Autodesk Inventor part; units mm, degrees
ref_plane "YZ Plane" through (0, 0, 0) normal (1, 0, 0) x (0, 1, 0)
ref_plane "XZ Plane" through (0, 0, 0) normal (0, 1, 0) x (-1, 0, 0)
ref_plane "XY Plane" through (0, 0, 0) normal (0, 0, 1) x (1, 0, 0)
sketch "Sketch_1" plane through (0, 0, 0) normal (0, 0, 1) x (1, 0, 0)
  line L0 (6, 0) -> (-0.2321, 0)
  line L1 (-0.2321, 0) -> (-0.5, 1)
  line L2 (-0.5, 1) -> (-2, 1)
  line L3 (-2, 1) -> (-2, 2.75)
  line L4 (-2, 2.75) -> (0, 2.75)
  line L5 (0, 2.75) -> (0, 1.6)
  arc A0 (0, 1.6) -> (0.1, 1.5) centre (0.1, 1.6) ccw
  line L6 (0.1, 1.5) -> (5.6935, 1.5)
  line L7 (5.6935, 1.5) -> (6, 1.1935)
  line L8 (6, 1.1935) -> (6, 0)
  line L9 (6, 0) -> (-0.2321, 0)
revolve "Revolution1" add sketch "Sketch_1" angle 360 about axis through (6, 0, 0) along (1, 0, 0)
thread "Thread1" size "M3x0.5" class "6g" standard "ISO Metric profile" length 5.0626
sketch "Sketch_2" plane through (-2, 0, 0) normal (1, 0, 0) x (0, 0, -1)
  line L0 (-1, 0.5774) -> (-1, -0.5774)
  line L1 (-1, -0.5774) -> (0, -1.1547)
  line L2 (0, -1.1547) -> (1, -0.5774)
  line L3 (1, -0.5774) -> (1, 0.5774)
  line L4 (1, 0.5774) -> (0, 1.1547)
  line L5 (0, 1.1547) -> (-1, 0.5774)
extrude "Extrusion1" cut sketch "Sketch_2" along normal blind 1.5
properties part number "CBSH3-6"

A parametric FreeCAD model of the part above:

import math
import FreeCAD as App
import Part
import Sketcher
from FreeCAD import Vector
Q = App.Units.Quantity


def add_polygon(sketch, points):
    """Adds a closed chain of lines whose ends are joined by coincident constraints."""
    first, n = sketch.GeometryCount, len(points)
    for a, b in zip(points, points[1:] + points[:1]):
        sketch.addGeometry(Part.LineSegment(App.Vector(*a, 0), App.Vector(*b, 0)), False)
    for i in range(n):
        sketch.addConstraint(Sketcher.Constraint("Coincident", first + i, 2, first + (i + 1) % n, 1))

doc = App.newDocument("Part")
body = doc.addObject("PartDesign::Body", "Body")

# Sketch on XY plane
sketch1 = body.newObject("Sketcher::SketchObject", "Sketch")
sketch1.AttachmentSupport = (doc.getObject("XY_Plane"), [""])
sketch1.MapMode = "FlatFace"
sketch1.addGeometry(Part.LineSegment(Vector(-0.23, 0, 0), Vector(6, 0, 0)), False)
sketch1.addGeometry(Part.LineSegment(Vector(6, 0, 0), Vector(6, 1.19, 0)), False)
sketch1.addGeometry(Part.LineSegment(Vector(6, 1.19, 0), Vector(5.69, 1.5, 0)), False)
sketch1.addGeometry(Part.LineSegment(Vector(5.69, 1.5, 0), Vector(0.1, 1.5, 0)), False)
sketch1.addGeometry(Part.ArcOfCircle(Part.Circle(Vector(0.1, 1.6, 0), Vector(0, 0, 1), 0.1), math.radians(180), math.radians(270)), False)
sketch1.addGeometry(Part.LineSegment(Vector(0, 1.6, 0), Vector(0, 2.75, 0)), False)
sketch1.addGeometry(Part.LineSegment(Vector(0, 2.75, 0), Vector(-2, 2.75, 0)), False)
sketch1.addGeometry(Part.LineSegment(Vector(-2, 2.75, 0), Vector(-2, 1, 0)), False)
sketch1.addGeometry(Part.LineSegment(Vector(-2, 1, 0), Vector(-0.5, 1, 0)), False)
sketch1.addGeometry(Part.LineSegment(Vector(-0.5, 1, 0), Vector(-0.23, 0, 0)), False)
sketch1.addConstraint(Sketcher.Constraint("Coincident", 0, 2, 1, 1))
sketch1.addConstraint(Sketcher.Constraint("Coincident", 1, 2, 2, 1))
sketch1.addConstraint(Sketcher.Constraint("Coincident", 2, 2, 3, 1))
sketch1.addConstraint(Sketcher.Constraint("Tangent", 3, 2, 4, 2))
sketch1.addConstraint(Sketcher.Constraint("Tangent", 4, 1, 5, 1))
sketch1.addConstraint(Sketcher.Constraint("Coincident", 5, 2, 6, 1))
sketch1.addConstraint(Sketcher.Constraint("Coincident", 6, 2, 7, 1))
sketch1.addConstraint(Sketcher.Constraint("Coincident", 7, 2, 8, 1))
sketch1.addConstraint(Sketcher.Constraint("Coincident", 8, 2, 9, 1))
sketch1.addConstraint(Sketcher.Constraint("Coincident", 9, 2, 0, 1))
sketch1.addConstraint(Sketcher.Constraint("Horizontal", 0))
sketch1.addConstraint(Sketcher.Constraint("Vertical", 1))
sketch1.addConstraint(Sketcher.Constraint("Horizontal", 3))
sketch1.addConstraint(Sketcher.Constraint("Vertical", 5))
sketch1.addConstraint(Sketcher.Constraint("Horizontal", 6))
sketch1.addConstraint(Sketcher.Constraint("Vertical", 7))
sketch1.addConstraint(Sketcher.Constraint("Horizontal", 8))
sketch1.addConstraint(Sketcher.Constraint("PointOnObject", 0, 2, -1))
sketch1.addConstraint(Sketcher.Constraint("PointOnObject", 4, 1, -2))
sketch1.addConstraint(Sketcher.Constraint("Radius", 4, 0.1))
sketch1.addConstraint(Sketcher.Constraint("DistanceX", 6, 2, 6, 1, 2.0))
sketch1.addConstraint(Sketcher.Constraint("Angle", 2, Q("135 deg")))
sketch1.addConstraint(Sketcher.Constraint("DistanceX", 8, 1, 8, 2, 1.5))
sketch1.addConstraint(Sketcher.Constraint("DistanceX", -1, 1, 0, 2, 6.0))
sketch1.addConstraint(Sketcher.Constraint("DistanceY", -1, 1, 7, 2, 1.0))
sketch1.addConstraint(Sketcher.Constraint("DistanceY", 5, 1, 5, 2, 1.15))
sketch1.addConstraint(Sketcher.Constraint("DistanceY", 7, 2, 7, 1, 1.75))
sketch1.addConstraint(Sketcher.Constraint("DistanceX", 0, 1, 0, 2, 6.232))
sketch1.addConstraint(Sketcher.Constraint("DistanceX", 3, 2, 3, 1, 5.5935))
revolution = body.newObject("PartDesign::Revolution", "Revolution")
revolution.Profile = sketch1
revolution.ReferenceAxis = (sketch1, ["H_Axis"])
revolution.Angle = 360

# Sketch on YZ plane
sketch2 = body.newObject("Sketcher::SketchObject", "Sketch001")
sketch2.AttachmentSupport = (doc.getObject("YZ_Plane"), [""])
sketch2.MapMode = "FlatFace"
sketch2.AttachmentOffset = App.Placement(Vector(0, 0, -2), App.Rotation())
add_polygon(sketch2, [(1.2, 0), (0.6, 1), (-0.6, 1), (-1.2, 0), (-0.6, -1), (0.6, -1)])  # lines 0-5
sketch2.addConstraint(Sketcher.Constraint("Horizontal", 1))
sketch2.addConstraint(Sketcher.Constraint("Horizontal", 4))
sketch2.addConstraint(Sketcher.Constraint("Symmetric", 0, 2, 3, 2, -1, 1))
sketch2.addConstraint(Sketcher.Constraint("Symmetric", 2, 2, 5, 2, -1, 1))
sketch2.addConstraint(Sketcher.Constraint("PointOnObject", 2, 2, -1))
sketch2.addConstraint(Sketcher.Constraint("Parallel", 2, 5))
sketch2.addConstraint(Sketcher.Constraint("Vertical", 1, 2, 3, 2))
sketch2.addConstraint(Sketcher.Constraint("DistanceY", -1, 1, 0, 2, 1.0))
sketch2.addConstraint(Sketcher.Constraint("DistanceX", 1, 2, 1, 1, 1.1548))
sketch2.addConstraint(Sketcher.Constraint("DistanceX", 2, 2, 0, 2, 1.732))
pocket1 = body.newObject("PartDesign::Pocket", "Pocket")
pocket1.Profile = sketch2
pocket1.Length = 1.5
pocket1.Reversed = True

doc.recompute()
